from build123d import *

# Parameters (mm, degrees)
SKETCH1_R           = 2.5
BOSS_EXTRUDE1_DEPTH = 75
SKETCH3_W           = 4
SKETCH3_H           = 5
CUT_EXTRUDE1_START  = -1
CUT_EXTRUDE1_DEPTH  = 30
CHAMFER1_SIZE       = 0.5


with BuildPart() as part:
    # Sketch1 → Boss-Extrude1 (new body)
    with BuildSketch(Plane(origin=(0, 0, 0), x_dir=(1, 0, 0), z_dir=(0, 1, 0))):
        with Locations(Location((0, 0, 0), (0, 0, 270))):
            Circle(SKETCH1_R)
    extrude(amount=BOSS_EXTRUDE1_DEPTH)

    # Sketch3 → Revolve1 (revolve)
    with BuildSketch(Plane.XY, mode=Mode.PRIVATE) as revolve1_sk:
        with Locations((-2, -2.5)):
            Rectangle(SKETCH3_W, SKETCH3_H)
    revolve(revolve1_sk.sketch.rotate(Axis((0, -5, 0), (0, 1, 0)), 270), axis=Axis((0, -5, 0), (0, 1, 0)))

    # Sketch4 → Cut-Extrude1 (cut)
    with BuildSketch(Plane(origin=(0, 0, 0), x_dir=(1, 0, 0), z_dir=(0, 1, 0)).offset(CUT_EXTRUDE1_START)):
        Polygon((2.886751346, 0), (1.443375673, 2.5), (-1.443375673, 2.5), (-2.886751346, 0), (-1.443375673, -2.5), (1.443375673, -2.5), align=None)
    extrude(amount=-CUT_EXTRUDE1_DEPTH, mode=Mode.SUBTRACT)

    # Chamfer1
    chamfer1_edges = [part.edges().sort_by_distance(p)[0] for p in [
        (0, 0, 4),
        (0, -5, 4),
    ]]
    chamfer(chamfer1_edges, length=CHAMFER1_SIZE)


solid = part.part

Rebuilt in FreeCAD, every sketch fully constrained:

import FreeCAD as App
import Part
import Sketcher

V = App.Vector
Q = App.Units.Quantity


def edges_at(feature, points):
    """Names of the edges that pass closest to the given points."""
    edges = feature.Shape.Edges
    near = lambda p: min(range(len(edges)), key=lambda i: edges[i].distToShape(Part.Vertex(*p))[0])
    return sorted({f"Edge{near(p) + 1}" for p in points})

doc = App.newDocument("Part")
body = doc.addObject("PartDesign::Body", "Body")

sketch1 = doc.addObject("Sketcher::SketchObject", "Sketch")
body.addObject(sketch1)
sketch1.AttachmentSupport = (doc.XZ_Plane, [""])
sketch1.MapMode = "FlatFace"
sketch1.addGeometry(Part.Circle(V(0, 0, 0), V(0, 0, 1), 2.5), False)
sketch1.addConstraint(Sketcher.Constraint("Coincident", 0, 3, -1, 1))
sketch1.addConstraint(Sketcher.Constraint("Diameter", 0, 5.0))
pad1 = doc.addObject("PartDesign::Pad", "Pad")
body.addObject(pad1)
pad1.Profile = sketch1
pad1.Length = 75
pad1.Reversed = True

sketch2 = doc.addObject("Sketcher::SketchObject", "Sketch001")
body.addObject(sketch2)
sketch2.AttachmentSupport = (doc.XY_Plane, [""])
sketch2.MapMode = "FlatFace"
sketch2.addGeometry(Part.LineSegment(V(-4, 0, 0), V(-4, -5, 0)), False)
sketch2.addGeometry(Part.LineSegment(V(-4, -5, 0), V(0, -5, 0)), False)
sketch2.addGeometry(Part.LineSegment(V(0, -5, 0), V(0, 0, 0)), False)
sketch2.addGeometry(Part.LineSegment(V(0, 0, 0), V(-4, 0, 0)), False)
sketch2.addConstraint(Sketcher.Constraint("Coincident", 0, 2, 1, 1))
sketch2.addConstraint(Sketcher.Constraint("Coincident", 1, 2, 2, 1))
sketch2.addConstraint(Sketcher.Constraint("Coincident", 2, 2, 3, 1))
sketch2.addConstraint(Sketcher.Constraint("Coincident", 3, 2, 0, 1))
sketch2.addConstraint(Sketcher.Constraint("Vertical", 0))
sketch2.addConstraint(Sketcher.Constraint("Horizontal", 1))
sketch2.addConstraint(Sketcher.Constraint("Vertical", 2))
sketch2.addConstraint(Sketcher.Constraint("Horizontal", 3))
sketch2.addConstraint(Sketcher.Constraint("Coincident", 2, 2, -1, 1))
sketch2.addConstraint(Sketcher.Constraint("DistanceX", 1, 1, 1, 2, 4.0))
sketch2.addConstraint(Sketcher.Constraint("DistanceY", 0, 2, 0, 1, 5.0))
revolution = doc.addObject("PartDesign::Revolution", "Revolution")
body.addObject(revolution)
revolution.Profile = sketch2
revolution.ReferenceAxis = (sketch2, ["V_Axis"])
revolution.Angle = 360

sketch3 = doc.addObject("Sketcher::SketchObject", "Sketch002")
body.addObject(sketch3)
sketch3.AttachmentSupport = (doc.XZ_Plane, [""])
sketch3.MapMode = "FlatFace"
sketch3.AttachmentOffset = App.Placement(V(0, 0, 1), App.Rotation())
sketch3.addGeometry(Part.LineSegment(V(2.9, 0, 0), V(1.4, -2.5, 0)), False)
sketch3.addGeometry(Part.LineSegment(V(1.4, -2.5, 0), V(-1.4, -2.5, 0)), False)
sketch3.addGeometry(Part.LineSegment(V(-1.4, -2.5, 0), V(-2.9, 0, 0)), False)
sketch3.addGeometry(Part.LineSegment(V(-2.9, 0, 0), V(-1.4, 2.5, 0)), False)
sketch3.addGeometry(Part.LineSegment(V(-1.4, 2.5, 0), V(1.4, 2.5, 0)), False)
sketch3.addGeometry(Part.LineSegment(V(1.4, 2.5, 0), V(2.9, 0, 0)), False)
sketch3.addConstraint(Sketcher.Constraint("Coincident", 0, 2, 1, 1))
sketch3.addConstraint(Sketcher.Constraint("Coincident", 1, 2, 2, 1))
sketch3.addConstraint(Sketcher.Constraint("Coincident", 2, 2, 3, 1))
sketch3.addConstraint(Sketcher.Constraint("Coincident", 3, 2, 4, 1))
sketch3.addConstraint(Sketcher.Constraint("Coincident", 4, 2, 5, 1))
sketch3.addConstraint(Sketcher.Constraint("Coincident", 5, 2, 0, 1))
sketch3.addConstraint(Sketcher.Constraint("Horizontal", 1))
sketch3.addConstraint(Sketcher.Constraint("Horizontal", 4))
sketch3.addConstraint(Sketcher.Constraint("Symmetric", 0, 2, 3, 2, -1, 1))
sketch3.addConstraint(Sketcher.Constraint("Symmetric", 2, 2, 5, 2, -1, 1))
sketch3.addConstraint(Sketcher.Constraint("PointOnObject", 2, 2, -1))
sketch3.addConstraint(Sketcher.Constraint("Parallel", 2, 5))
sketch3.addConstraint(Sketcher.Constraint("Vertical", 1, 2, 3, 2))
sketch3.addConstraint(Sketcher.Constraint("Angle", 0, Q("-120 deg")))
sketch3.addConstraint(Sketcher.Constraint("DistanceY", 1, 2, 3, 2, 5.0))
sketch3.addConstraint(Sketcher.Constraint("DistanceX", 1, 2, 1, 1, 2.886751))
pocket1 = doc.addObject("PartDesign::Pocket", "Pocket")
body.addObject(pocket1)
pocket1.Profile = sketch3
pocket1.Length = 30
pocket1.Reversed = True
doc.recompute()

chamfer = doc.addObject("PartDesign::Chamfer", "Chamfer")
body.addObject(chamfer)
chamfer.Base = (pocket1, edges_at(pocket1, [(0, 0, 4), (0, -5, 4)]))
chamfer.Size = 0.5

doc.recompute()
